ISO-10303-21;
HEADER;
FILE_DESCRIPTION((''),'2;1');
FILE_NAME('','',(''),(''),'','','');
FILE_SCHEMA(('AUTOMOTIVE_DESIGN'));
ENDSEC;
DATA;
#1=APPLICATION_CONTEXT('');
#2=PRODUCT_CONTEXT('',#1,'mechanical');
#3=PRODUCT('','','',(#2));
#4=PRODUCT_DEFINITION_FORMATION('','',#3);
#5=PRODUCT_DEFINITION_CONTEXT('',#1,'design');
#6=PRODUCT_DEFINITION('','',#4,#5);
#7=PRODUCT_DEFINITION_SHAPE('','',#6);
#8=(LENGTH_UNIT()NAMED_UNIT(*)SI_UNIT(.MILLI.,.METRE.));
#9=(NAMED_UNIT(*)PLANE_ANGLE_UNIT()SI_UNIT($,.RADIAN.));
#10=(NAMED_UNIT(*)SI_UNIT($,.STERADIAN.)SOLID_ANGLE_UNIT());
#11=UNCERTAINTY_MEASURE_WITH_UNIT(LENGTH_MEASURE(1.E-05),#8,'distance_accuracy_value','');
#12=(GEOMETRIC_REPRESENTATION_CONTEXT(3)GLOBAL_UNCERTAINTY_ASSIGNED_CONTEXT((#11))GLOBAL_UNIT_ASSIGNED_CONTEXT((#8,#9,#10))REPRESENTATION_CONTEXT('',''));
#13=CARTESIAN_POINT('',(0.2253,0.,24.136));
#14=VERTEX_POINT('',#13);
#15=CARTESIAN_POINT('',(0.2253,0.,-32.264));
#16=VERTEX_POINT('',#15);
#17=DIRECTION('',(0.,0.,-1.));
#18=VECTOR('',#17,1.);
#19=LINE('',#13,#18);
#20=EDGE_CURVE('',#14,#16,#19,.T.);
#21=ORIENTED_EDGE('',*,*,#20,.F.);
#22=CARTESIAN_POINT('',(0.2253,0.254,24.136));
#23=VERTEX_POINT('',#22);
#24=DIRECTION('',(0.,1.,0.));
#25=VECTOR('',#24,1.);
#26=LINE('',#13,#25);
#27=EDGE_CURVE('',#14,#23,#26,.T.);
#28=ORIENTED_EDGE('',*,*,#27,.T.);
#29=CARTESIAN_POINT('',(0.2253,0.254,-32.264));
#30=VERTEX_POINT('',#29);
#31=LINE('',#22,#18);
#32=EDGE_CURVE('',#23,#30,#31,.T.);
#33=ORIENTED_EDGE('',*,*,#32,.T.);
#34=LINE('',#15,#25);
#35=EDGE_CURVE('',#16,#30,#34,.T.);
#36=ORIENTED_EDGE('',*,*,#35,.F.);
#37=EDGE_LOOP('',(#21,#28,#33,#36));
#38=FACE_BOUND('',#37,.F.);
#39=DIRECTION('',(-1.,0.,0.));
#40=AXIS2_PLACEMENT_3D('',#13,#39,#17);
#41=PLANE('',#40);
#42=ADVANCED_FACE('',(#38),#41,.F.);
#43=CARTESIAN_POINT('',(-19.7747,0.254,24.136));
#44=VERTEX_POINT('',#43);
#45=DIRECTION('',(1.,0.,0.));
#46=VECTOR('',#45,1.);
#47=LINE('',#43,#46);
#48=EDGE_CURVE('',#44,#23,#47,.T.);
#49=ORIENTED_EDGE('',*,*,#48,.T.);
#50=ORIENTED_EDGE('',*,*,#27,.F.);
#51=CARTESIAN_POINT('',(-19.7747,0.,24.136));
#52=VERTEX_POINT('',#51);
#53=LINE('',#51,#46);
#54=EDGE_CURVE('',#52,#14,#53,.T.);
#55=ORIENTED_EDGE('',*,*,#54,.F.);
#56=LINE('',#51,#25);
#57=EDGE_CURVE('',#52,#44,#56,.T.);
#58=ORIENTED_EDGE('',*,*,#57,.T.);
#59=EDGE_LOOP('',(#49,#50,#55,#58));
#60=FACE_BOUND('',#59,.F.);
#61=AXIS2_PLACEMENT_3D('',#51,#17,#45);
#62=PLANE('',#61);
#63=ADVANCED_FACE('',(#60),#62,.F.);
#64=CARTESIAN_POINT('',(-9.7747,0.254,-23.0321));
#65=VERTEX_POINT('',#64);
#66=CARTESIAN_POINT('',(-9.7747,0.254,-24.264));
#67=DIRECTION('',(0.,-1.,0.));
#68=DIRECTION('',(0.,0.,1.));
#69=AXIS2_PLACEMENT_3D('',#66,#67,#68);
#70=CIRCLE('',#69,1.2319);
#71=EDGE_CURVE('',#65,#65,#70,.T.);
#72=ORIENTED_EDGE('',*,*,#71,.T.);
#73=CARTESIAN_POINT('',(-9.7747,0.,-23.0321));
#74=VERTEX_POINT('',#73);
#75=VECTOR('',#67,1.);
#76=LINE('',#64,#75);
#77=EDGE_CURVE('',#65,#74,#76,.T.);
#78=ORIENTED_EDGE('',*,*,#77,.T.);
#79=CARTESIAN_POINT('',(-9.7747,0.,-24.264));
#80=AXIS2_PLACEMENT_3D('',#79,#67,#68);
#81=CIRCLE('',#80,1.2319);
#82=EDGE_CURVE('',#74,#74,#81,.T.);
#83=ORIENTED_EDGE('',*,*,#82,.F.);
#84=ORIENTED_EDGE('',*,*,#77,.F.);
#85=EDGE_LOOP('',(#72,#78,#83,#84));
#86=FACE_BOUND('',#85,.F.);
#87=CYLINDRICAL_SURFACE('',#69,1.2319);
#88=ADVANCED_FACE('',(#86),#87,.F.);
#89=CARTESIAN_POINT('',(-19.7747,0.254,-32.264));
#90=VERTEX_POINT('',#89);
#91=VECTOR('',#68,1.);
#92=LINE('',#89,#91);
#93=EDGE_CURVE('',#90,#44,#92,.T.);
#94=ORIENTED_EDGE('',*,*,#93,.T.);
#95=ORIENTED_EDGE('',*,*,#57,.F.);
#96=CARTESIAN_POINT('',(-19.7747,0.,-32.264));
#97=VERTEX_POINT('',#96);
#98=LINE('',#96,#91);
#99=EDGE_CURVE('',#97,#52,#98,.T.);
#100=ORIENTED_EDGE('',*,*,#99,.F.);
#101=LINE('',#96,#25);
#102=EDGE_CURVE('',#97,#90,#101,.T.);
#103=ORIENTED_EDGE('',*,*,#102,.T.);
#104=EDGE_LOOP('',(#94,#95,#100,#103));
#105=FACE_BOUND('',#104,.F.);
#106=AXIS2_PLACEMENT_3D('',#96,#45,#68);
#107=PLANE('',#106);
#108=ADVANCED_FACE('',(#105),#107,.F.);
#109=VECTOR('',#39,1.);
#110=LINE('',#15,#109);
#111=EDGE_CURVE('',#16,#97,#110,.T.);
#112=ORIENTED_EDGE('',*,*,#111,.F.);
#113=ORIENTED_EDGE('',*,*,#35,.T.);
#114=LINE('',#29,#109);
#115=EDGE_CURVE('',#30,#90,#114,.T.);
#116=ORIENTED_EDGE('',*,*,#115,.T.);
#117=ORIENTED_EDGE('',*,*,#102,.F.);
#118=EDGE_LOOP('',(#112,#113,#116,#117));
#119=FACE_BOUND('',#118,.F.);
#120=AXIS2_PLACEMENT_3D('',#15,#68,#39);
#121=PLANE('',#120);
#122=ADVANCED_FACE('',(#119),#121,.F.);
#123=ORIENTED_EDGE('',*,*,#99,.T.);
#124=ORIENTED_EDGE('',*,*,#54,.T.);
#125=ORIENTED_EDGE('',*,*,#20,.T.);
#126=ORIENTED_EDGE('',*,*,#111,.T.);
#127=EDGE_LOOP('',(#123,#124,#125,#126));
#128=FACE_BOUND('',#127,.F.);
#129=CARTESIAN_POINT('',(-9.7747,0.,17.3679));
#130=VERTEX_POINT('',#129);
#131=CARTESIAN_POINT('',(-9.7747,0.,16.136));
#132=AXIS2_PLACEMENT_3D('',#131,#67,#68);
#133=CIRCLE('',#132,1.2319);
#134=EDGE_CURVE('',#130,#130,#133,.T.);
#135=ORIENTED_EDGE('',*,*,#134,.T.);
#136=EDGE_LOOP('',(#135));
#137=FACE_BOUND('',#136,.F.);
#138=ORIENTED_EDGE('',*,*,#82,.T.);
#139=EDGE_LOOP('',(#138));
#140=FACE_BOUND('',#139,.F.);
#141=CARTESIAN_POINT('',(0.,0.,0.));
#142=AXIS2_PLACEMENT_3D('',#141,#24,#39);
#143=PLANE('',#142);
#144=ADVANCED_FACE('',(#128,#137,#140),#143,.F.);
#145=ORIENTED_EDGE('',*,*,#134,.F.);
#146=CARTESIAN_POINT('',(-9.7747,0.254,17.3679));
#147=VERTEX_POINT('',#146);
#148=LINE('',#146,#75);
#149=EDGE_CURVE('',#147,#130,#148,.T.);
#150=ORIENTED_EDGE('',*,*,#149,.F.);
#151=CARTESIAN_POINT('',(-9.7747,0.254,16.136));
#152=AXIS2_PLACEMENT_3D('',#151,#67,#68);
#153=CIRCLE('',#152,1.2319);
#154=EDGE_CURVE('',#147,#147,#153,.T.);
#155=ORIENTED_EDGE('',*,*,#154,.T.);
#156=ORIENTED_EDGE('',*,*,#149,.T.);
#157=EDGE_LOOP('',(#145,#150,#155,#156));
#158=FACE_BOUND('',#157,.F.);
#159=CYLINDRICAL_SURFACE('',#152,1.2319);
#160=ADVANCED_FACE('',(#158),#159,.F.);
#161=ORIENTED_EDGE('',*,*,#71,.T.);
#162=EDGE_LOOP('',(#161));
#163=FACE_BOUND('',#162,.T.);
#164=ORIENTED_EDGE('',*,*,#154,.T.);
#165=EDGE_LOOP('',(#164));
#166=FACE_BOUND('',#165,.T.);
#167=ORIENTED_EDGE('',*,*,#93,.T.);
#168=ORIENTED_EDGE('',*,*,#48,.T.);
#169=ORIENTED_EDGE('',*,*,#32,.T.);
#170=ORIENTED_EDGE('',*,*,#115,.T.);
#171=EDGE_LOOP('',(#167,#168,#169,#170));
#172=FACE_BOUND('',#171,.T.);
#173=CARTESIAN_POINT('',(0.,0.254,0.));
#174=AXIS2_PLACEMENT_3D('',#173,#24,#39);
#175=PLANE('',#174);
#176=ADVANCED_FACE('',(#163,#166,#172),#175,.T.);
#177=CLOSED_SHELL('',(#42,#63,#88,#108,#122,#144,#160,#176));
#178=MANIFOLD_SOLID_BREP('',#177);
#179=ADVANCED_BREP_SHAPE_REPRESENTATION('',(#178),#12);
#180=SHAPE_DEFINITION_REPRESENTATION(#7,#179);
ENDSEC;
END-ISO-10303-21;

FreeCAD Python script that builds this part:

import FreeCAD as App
import Part
import Sketcher
Q = App.Units.Quantity


def add_polygon(sketch, points):
    """Adds a closed chain of lines whose ends are joined by coincident constraints."""
    first, n = sketch.GeometryCount, len(points)
    for a, b in zip(points, points[1:] + points[:1]):
        sketch.addGeometry(Part.LineSegment(App.Vector(*a, 0), App.Vector(*b, 0)), False)
    for i in range(n):
        sketch.addConstraint(Sketcher.Constraint("Coincident", first + i, 2, first + (i + 1) % n, 1))

doc = App.newDocument("Part")
body = doc.addObject("PartDesign::Body", "Body")

# Sketch on XZ plane
sketch1 = body.newObject("Sketcher::SketchObject", "Sketch")
sketch1.AttachmentSupport = (doc.getObject("XZ_Plane"), [""])
sketch1.MapMode = "FlatFace"
add_polygon(sketch1, [(-20, -32), (-20, 24), (0, 24), (0, -32)])  # lines 0-3
sketch1.addConstraint(Sketcher.Constraint("Vertical", 0))
sketch1.addConstraint(Sketcher.Constraint("Horizontal", 1))
sketch1.addConstraint(Sketcher.Constraint("Vertical", 2))
sketch1.addConstraint(Sketcher.Constraint("Horizontal", 3))
sketch1.addConstraint(Sketcher.Constraint("DistanceX", 1, 1, 1, 2, Q("0.7874 in")))
sketch1.addConstraint(Sketcher.Constraint("DistanceY", 0, 1, 0, 2, 56.4))
sketch1.addConstraint(Sketcher.Constraint("DistanceX", 0, 2, -1, 1, 19.7747))
sketch1.addConstraint(Sketcher.Constraint("DistanceY", -1, 1, 0, 2, 24.136))
pad1 = body.newObject("PartDesign::Pad", "Pad")
pad1.Profile = sketch1
pad1.Length = Q("0.01 in")
pad1.Reversed = True

# Sketch on XZ plane
sketch2 = body.newObject("Sketcher::SketchObject", "Sketch001")
sketch2.AttachmentSupport = (doc.getObject("XZ_Plane"), [""])
sketch2.MapMode = "FlatFace"
sketch2.AttachmentOffset = App.Placement(App.Vector(0, 0, -0.01 * 25.4), App.Rotation())
sketch2.addGeometry(Part.Circle(App.Vector(-9.8, 16.1, 0), App.Vector(0, 0, 1), 1.2), False)
sketch2.addGeometry(Part.Circle(App.Vector(-9.8, -24.3, 0), App.Vector(0, 0, 1), 1.2), False)
sketch2.addConstraint(Sketcher.Constraint("Equal", 0, 1))
sketch2.addConstraint(Sketcher.Constraint("Vertical", 0, 3, 1, 3))
sketch2.addConstraint(Sketcher.Constraint("Diameter", 0, Q("0.097 in")))
sketch2.addConstraint(Sketcher.Constraint("DistanceX", 0, 3, -1, 1, 9.7747))
sketch2.addConstraint(Sketcher.Constraint("DistanceY", -1, 1, 0, 3, 16.136))
sketch2.addConstraint(Sketcher.Constraint("DistanceY", 1, 3, -1, 1, 24.264))
doc.recompute()
hole = body.newObject("PartDesign::Hole", "Hole")
hole.Profile = sketch2
hole.ThreadType = "None"
hole.Diameter = Q("0.097 in")
hole.DepthType = "ThroughAll"
hole.Reversed = True

doc.recompute()
